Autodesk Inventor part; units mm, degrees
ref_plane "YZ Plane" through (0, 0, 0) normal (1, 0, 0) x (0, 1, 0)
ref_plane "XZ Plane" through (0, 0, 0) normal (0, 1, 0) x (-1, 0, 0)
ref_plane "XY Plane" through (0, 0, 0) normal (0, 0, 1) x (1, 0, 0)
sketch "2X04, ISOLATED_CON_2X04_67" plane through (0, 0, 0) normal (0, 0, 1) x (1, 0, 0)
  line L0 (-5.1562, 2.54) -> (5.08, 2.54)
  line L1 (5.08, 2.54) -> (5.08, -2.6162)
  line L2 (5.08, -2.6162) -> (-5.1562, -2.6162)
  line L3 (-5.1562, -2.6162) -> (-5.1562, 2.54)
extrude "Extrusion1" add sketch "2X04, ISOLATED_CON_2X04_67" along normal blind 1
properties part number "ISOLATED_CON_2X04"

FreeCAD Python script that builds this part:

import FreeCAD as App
import Part
import Sketcher
Q = App.Units.Quantity

doc = App.newDocument("Part")
body = doc.addObject("PartDesign::Body", "Body")

sketch1 = doc.addObject("Sketcher::SketchObject", "Sketch")
body.addObject(sketch1)
sketch1.AttachmentSupport = (doc.XY_Plane, [""])
sketch1.MapMode = "FlatFace"
sketch1.addGeometry([
    Part.LineSegment(App.Vector(5, 3, 0), App.Vector(-5, 3, 0)),
    Part.LineSegment(App.Vector(-5, 3, 0), App.Vector(-5, -3, 0)),
    Part.LineSegment(App.Vector(-5, -3, 0), App.Vector(5, -3, 0)),
    Part.LineSegment(App.Vector(5, -3, 0), App.Vector(5, 3, 0)),
], False)
sketch1.addConstraint([
    Sketcher.Constraint("Coincident", 0, 2, 1, 1),
    Sketcher.Constraint("Coincident", 1, 2, 2, 1),
    Sketcher.Constraint("Coincident", 2, 2, 3, 1),
    Sketcher.Constraint("Coincident", 3, 2, 0, 1),
    Sketcher.Constraint("Horizontal", 0),
    Sketcher.Constraint("Vertical", 1),
    Sketcher.Constraint("Horizontal", 2),
    Sketcher.Constraint("Vertical", 3),
    Sketcher.Constraint("DistanceY", -1, 1, 0, 2, Q("0.1 in")),
    Sketcher.Constraint("DistanceX", -1, 1, 2, 2, Q("0.2 in")),
    Sketcher.Constraint("DistanceX", 0, 2, 0, 1, Q("0.403 in")),
    Sketcher.Constraint("DistanceY", 1, 2, 1, 1, Q("0.203 in")),
])
pad1 = doc.addObject("PartDesign::Pad", "Pad")
body.addObject(pad1)
pad1.Profile = sketch1
pad1.Length = 1

doc.recompute()
